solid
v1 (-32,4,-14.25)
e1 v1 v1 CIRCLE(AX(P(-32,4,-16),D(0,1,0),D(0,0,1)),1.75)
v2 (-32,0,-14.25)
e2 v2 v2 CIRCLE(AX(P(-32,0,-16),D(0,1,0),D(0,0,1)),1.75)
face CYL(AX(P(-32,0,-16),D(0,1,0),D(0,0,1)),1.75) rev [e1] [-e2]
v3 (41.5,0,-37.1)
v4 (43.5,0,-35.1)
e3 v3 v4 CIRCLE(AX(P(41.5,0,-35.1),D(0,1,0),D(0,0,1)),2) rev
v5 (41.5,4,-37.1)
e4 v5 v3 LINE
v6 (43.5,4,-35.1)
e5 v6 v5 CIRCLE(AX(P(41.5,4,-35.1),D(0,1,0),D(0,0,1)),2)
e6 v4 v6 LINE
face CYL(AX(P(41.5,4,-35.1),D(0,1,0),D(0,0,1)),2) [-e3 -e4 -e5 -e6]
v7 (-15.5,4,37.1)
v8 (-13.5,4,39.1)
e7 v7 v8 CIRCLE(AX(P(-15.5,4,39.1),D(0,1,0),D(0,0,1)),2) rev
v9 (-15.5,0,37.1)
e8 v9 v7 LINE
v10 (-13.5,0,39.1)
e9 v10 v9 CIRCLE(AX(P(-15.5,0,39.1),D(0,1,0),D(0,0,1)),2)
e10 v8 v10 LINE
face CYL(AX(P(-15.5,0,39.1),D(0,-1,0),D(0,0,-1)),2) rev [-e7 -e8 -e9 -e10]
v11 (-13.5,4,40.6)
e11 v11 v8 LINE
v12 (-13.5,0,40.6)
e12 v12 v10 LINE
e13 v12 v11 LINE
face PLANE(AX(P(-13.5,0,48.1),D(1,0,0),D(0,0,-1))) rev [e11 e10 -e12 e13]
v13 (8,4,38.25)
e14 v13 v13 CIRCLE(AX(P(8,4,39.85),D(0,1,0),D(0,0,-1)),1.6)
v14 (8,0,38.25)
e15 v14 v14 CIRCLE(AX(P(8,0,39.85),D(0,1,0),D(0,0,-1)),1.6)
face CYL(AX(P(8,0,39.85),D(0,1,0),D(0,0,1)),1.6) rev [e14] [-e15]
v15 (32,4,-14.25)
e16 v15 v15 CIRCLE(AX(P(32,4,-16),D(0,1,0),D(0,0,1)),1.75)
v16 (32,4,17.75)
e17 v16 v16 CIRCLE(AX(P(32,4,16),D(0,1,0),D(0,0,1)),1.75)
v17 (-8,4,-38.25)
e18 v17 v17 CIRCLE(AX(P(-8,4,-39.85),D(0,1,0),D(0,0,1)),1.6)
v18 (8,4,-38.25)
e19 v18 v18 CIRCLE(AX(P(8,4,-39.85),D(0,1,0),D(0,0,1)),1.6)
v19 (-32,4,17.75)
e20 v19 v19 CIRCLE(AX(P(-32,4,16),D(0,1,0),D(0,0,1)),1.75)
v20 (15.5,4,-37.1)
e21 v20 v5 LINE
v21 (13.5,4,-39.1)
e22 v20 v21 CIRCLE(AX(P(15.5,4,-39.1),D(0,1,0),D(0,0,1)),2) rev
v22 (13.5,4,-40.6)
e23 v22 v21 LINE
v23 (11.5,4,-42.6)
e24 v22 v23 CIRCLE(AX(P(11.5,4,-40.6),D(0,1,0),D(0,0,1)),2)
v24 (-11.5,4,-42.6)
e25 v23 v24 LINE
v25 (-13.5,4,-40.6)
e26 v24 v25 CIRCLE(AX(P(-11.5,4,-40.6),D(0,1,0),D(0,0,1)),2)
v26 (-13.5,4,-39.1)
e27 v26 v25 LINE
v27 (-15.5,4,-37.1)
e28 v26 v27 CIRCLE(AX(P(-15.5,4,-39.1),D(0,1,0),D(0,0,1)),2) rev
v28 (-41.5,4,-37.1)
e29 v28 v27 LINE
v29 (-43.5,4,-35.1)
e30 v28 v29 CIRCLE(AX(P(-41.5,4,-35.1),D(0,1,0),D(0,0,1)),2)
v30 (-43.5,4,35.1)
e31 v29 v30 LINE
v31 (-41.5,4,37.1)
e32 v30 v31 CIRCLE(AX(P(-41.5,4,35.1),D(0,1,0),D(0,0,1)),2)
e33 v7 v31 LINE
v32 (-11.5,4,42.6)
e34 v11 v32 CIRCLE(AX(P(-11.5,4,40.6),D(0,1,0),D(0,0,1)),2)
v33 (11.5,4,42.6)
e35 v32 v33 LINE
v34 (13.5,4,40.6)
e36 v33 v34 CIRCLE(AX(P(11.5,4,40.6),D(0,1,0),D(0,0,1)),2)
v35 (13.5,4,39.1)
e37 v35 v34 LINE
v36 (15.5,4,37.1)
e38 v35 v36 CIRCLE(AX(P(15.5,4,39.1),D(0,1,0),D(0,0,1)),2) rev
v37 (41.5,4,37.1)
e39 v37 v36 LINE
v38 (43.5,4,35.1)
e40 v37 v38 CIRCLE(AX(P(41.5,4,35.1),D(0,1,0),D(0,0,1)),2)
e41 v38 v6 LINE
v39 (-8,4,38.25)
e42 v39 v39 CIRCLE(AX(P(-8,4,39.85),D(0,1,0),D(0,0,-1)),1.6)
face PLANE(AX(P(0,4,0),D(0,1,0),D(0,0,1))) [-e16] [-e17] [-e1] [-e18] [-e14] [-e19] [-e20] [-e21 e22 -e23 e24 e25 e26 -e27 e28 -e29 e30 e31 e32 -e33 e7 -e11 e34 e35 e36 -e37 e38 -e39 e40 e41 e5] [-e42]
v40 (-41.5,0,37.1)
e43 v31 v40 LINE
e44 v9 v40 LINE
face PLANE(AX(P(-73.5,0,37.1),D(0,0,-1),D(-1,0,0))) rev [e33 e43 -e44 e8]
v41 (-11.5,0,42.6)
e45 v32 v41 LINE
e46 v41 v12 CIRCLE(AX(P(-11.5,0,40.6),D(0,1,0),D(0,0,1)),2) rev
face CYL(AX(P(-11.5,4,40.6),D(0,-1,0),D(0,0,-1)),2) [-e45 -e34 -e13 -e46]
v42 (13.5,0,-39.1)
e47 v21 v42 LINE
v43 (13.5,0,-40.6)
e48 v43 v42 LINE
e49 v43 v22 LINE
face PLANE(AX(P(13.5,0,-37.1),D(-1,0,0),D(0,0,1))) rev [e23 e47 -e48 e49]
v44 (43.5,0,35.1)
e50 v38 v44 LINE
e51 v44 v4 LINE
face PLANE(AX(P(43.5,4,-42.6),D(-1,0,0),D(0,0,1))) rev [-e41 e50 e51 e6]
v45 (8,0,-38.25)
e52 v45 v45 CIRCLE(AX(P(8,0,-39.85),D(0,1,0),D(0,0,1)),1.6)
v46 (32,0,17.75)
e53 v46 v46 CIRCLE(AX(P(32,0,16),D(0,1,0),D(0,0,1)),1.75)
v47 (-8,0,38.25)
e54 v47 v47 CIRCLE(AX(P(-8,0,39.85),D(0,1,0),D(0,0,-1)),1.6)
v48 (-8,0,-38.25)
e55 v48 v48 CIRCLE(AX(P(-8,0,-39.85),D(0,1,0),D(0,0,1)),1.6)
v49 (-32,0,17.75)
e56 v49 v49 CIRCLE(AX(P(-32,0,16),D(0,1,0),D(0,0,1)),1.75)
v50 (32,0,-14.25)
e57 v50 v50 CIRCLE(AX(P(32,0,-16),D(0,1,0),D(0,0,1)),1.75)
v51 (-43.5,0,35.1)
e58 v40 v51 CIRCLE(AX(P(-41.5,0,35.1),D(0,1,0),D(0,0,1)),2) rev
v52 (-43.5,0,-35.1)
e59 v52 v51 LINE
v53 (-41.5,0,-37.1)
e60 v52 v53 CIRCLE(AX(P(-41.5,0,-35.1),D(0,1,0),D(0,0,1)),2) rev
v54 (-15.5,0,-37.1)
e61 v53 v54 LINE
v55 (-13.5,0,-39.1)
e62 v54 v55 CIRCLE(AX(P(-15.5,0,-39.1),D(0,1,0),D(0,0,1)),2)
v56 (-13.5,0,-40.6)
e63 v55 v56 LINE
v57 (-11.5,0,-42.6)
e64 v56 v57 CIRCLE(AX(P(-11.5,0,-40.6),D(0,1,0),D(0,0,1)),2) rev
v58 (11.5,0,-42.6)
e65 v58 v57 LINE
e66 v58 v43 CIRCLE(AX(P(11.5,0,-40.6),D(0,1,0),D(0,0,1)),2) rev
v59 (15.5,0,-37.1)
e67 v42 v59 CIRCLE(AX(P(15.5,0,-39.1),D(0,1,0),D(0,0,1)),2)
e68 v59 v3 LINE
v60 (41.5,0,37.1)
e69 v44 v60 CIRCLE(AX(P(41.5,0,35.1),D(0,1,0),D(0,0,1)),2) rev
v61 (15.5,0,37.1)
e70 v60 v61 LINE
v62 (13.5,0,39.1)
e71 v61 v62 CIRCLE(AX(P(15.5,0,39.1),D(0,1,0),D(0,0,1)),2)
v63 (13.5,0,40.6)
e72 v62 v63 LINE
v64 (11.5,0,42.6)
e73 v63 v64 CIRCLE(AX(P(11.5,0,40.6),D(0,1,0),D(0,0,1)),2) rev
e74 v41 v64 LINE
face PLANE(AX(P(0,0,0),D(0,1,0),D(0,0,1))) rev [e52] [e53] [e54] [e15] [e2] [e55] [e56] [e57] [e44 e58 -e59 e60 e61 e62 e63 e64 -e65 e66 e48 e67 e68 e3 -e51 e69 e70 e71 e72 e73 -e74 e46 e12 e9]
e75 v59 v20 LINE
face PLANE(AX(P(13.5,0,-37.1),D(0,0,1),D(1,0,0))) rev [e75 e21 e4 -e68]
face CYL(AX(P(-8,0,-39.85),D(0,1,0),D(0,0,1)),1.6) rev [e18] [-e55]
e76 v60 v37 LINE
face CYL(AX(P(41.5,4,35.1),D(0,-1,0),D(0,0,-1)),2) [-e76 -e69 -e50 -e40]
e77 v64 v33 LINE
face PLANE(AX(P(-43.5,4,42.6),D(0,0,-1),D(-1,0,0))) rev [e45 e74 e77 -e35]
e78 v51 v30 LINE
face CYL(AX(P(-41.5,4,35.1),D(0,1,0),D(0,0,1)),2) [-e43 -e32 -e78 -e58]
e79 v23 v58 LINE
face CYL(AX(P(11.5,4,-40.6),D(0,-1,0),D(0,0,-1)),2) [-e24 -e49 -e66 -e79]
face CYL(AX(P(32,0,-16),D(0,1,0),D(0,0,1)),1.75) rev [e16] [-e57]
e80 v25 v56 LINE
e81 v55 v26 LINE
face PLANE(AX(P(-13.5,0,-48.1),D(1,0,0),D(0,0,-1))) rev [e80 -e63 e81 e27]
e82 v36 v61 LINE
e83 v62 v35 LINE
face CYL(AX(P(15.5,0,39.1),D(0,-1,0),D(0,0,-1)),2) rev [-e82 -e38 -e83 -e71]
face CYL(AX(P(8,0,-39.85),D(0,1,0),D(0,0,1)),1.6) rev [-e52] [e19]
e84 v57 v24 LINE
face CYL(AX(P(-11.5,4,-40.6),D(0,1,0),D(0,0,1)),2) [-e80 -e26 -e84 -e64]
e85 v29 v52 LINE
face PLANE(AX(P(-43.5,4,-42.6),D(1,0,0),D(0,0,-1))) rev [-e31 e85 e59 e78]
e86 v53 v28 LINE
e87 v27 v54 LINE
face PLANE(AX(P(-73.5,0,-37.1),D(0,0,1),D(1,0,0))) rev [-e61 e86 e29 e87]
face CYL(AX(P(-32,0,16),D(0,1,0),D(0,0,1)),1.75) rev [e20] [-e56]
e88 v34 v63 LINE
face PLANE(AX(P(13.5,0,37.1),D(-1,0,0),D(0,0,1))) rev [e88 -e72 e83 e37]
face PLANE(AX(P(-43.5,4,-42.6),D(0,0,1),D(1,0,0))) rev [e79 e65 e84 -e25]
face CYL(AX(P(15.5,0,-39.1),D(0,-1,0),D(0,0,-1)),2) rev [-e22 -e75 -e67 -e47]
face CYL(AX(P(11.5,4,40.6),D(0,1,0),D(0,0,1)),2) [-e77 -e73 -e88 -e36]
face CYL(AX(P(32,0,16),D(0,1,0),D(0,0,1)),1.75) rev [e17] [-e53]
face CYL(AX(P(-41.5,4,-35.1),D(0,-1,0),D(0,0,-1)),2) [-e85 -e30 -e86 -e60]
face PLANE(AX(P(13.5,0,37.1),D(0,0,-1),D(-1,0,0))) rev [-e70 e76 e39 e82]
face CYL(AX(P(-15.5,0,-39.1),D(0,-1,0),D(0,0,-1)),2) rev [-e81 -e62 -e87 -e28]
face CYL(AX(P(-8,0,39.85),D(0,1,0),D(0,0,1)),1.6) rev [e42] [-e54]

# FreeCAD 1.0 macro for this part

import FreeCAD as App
import Part
import Sketcher
from FreeCAD import Vector


def edges_at(feature, points):
    """Names of the edges that pass closest to the given points."""
    edges = feature.Shape.Edges
    near = lambda p: min(range(len(edges)), key=lambda i: edges[i].distToShape(Part.Vertex(*p))[0])
    return sorted({f"Edge{near(p) + 1}" for p in points})


def add_polygon(sketch, points):
    """Adds a closed chain of lines whose ends are joined by coincident constraints."""
    first, n = sketch.GeometryCount, len(points)
    for a, b in zip(points, points[1:] + points[:1]):
        sketch.addGeometry(Part.LineSegment(App.Vector(*a, 0), App.Vector(*b, 0)), False)
    for i in range(n):
        sketch.addConstraint(Sketcher.Constraint("Coincident", first + i, 2, first + (i + 1) % n, 1))

doc = App.newDocument("Part")
body = doc.addObject("PartDesign::Body", "Body")

# Sketch on XZ plane
sketch1 = body.newObject("Sketcher::SketchObject", "Sketch")
sketch1.AttachmentSupport = (doc.getObject("XZ_Plane"), [""])
sketch1.MapMode = "FlatFace"
add_polygon(sketch1, [(-44, -43), (-44, 43), (44, 43), (44, -43)])  # lines 0-3
sketch1.addConstraint([
    Sketcher.Constraint("Vertical", 0),
    Sketcher.Constraint("Horizontal", 1),
    Sketcher.Constraint("Vertical", 2),
    Sketcher.Constraint("Horizontal", 3),
    Sketcher.Constraint("Symmetric", 0, 2, 2, 2, -1, 1),
    Sketcher.Constraint("DistanceX", 1, 1, 1, 2, 87.0),
    Sketcher.Constraint("DistanceY", 0, 1, 0, 2, 85.2),
])
pad1 = body.newObject("PartDesign::Pad", "Pad")
pad1.Profile = sketch1
pad1.Length = 4
pad1.Reversed = True

# Sketch on XZ plane
sketch2 = body.newObject("Sketcher::SketchObject", "Sketch001")
sketch2.AttachmentSupport = (doc.getObject("XZ_Plane"), [""])
sketch2.MapMode = "FlatFace"
sketch2.AttachmentOffset = App.Placement(Vector(0, 0, -4), App.Rotation())
add_polygon(sketch2, [(-74, -48), (-74, -37), (-14, -37), (-14, -48)])  # lines 0-3
add_polygon(sketch2, [(14, -48), (14, -37), (74, -37), (74, -48)])  # lines 4-7
add_polygon(sketch2, [(14, 37), (14, 48), (74, 48), (74, 37)])  # lines 8-11
add_polygon(sketch2, [(-74, 37), (-74, 48), (-14, 48), (-14, 37)])  # lines 12-15
sketch2.addConstraint([
    Sketcher.Constraint("Vertical", 0),
    Sketcher.Constraint("Horizontal", 1),
    Sketcher.Constraint("Vertical", 2),
    Sketcher.Constraint("Horizontal", 3),
    Sketcher.Constraint("Vertical", 4),
    Sketcher.Constraint("Horizontal", 5),
    Sketcher.Constraint("Vertical", 6),
    Sketcher.Constraint("Horizontal", 7),
    Sketcher.Constraint("Vertical", 8),
    Sketcher.Constraint("Horizontal", 9),
    Sketcher.Constraint("Vertical", 10),
    Sketcher.Constraint("Horizontal", 11),
    Sketcher.Constraint("Vertical", 12),
    Sketcher.Constraint("Horizontal", 13),
    Sketcher.Constraint("Vertical", 14),
    Sketcher.Constraint("Horizontal", 15),
    Sketcher.Constraint("Symmetric", 2, 2, 8, 2, -1, 1),
    Sketcher.Constraint("Symmetric", 0, 2, 10, 2, -1, 1),
    Sketcher.Constraint("Symmetric", 6, 2, 12, 2, -1, 1),
    Sketcher.Constraint("Symmetric", 4, 2, 14, 2, -1, 1),
    Sketcher.Constraint("Symmetric", 1, 2, 4, 2, -2),
    Sketcher.Constraint("Symmetric", 3, 2, 6, 2, -2),
    Sketcher.Constraint("DistanceX", 1, 1, 1, 2, 60.0),
    Sketcher.Constraint("DistanceY", 0, 1, 0, 2, 11.0),
    Sketcher.Constraint("DistanceX", 1, 2, 4, 2, 27.0),
    Sketcher.Constraint("DistanceY", 0, 2, -1, 1, 37.1),
])
pocket1 = body.newObject("PartDesign::Pocket", "Pocket")
pocket1.Profile = sketch2
pocket1.Length = 4
pocket1.Reversed = True

# Sketch on XZ plane
sketch3 = body.newObject("Sketcher::SketchObject", "Sketch002")
sketch3.AttachmentSupport = (doc.getObject("XZ_Plane"), [""])
sketch3.MapMode = "FlatFace"
sketch3.AttachmentOffset = App.Placement(Vector(0, 0, -4), App.Rotation())
sketch3.addGeometry([
    Part.Circle(Vector(-32, -16, 0), Vector(0, 0, 1), 1.8),
    Part.Circle(Vector(32, -16, 0), Vector(0, 0, 1), 1.8),
    Part.Circle(Vector(-32, 16, 0), Vector(0, 0, 1), 1.8),
    Part.Circle(Vector(32, 16, 0), Vector(0, 0, 1), 1.8),
], False)
sketch3.addConstraint([
    Sketcher.Constraint("Equal", 0, 1),
    Sketcher.Constraint("Equal", 1, 2),
    Sketcher.Constraint("Equal", 2, 3),
    Sketcher.Constraint("Symmetric", 1, 3, 2, 3, -1, 1),
    Sketcher.Constraint("Symmetric", 0, 3, 3, 3, -1, 1),
    Sketcher.Constraint("Symmetric", 0, 3, 1, 3, -2),
    Sketcher.Constraint("Diameter", 0, 3.5),
    Sketcher.Constraint("DistanceX", 0, 3, -1, 1, 32.0),
    Sketcher.Constraint("DistanceY", 0, 3, -1, 1, 16.0),
])
pocket2 = body.newObject("PartDesign::Pocket", "Pocket001")
pocket2.Profile = sketch3
pocket2.Length = 4
pocket2.Reversed = True

# Sketch on XZ plane
sketch4 = body.newObject("Sketcher::SketchObject", "Sketch003")
sketch4.AttachmentSupport = (doc.getObject("XZ_Plane"), [""])
sketch4.MapMode = "FlatFace"
sketch4.AttachmentOffset = App.Placement(Vector(0, 0, -4), App.Rotation())
sketch4.addGeometry([
    Part.Circle(Vector(-8, -39.9, 0), Vector(0, 0, 1), 1.6),
    Part.Circle(Vector(8, -39.9, 0), Vector(0, 0, 1), 1.6),
    Part.Circle(Vector(8, 39.9, 0), Vector(0, 0, 1), 1.6),
    Part.Circle(Vector(-8, 39.9, 0), Vector(0, 0, 1), 1.6),
], False)
sketch4.addConstraint([
    Sketcher.Constraint("Equal", 0, 1),
    Sketcher.Constraint("Equal", 1, 2),
    Sketcher.Constraint("Equal", 2, 3),
    Sketcher.Constraint("Symmetric", 0, 3, 2, 3, -1, 1),
    Sketcher.Constraint("Symmetric", 1, 3, 3, 3, -1, 1),
    Sketcher.Constraint("Symmetric", 0, 3, 1, 3, -2),
    Sketcher.Constraint("Diameter", 0, 3.2),
    Sketcher.Constraint("DistanceX", 0, 3, -1, 1, 8.0),
    Sketcher.Constraint("DistanceY", 1, 3, 2, 3, 79.7),
])
pocket3 = body.newObject("PartDesign::Pocket", "Pocket002")
pocket3.Profile = sketch4
pocket3.Length = 4
pocket3.Reversed = True
doc.recompute()

fillet = body.newObject("PartDesign::Fillet", "Fillet")
fillet.Base = (pocket3, edges_at(pocket3, [
    (-13.5, 2, -42.6),
    (-43.5, 2, -37.1),
    (-13.5, 2, -37.1),
    (43.5, 2, -37.1),
    (13.5, 2, -42.6),
    (13.5, 2, -37.1),
    (43.5, 2, 37.1),
    (13.5, 2, 37.1),
    (13.5, 2, 42.6),
    (-43.5, 2, 37.1),
    (-13.5, 2, 42.6),
    (-13.5, 2, 37.1),
]))
fillet.Radius = 2

doc.recompute()
